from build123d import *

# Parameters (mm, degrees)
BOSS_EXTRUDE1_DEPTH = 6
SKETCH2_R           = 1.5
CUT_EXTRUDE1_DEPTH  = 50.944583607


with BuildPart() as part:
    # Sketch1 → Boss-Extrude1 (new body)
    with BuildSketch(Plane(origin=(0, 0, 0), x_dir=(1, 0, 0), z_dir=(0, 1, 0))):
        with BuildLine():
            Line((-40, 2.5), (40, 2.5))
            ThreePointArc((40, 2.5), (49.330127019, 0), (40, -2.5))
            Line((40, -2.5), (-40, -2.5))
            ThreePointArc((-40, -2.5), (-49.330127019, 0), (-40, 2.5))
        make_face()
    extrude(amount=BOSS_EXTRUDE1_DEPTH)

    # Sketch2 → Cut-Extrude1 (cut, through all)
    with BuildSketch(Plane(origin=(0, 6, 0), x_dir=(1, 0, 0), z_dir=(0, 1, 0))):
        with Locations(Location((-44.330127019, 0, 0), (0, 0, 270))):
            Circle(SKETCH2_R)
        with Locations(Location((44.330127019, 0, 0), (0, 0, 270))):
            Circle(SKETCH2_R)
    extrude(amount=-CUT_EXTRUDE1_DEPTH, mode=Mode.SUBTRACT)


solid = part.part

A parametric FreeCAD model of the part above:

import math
import FreeCAD as App
import Part
import Sketcher
Q = App.Units.Quantity

doc = App.newDocument("Part")
params = doc.addObject("Spreadsheet::Sheet", "Params")
for row, (alias, value) in enumerate([
    ("sketch1_radius", "5 mm"),
    ("sketch1_width", "80 mm"),
    ("pad1_length", "6 mm"),
    ("sketch2_diameter", "3 mm"),
], start=1):
    params.set(f"A{row}", alias)
    params.set(f"B{row}", "=" + value)
    params.setAlias(f"B{row}", alias)

body = doc.addObject("PartDesign::Body", "Body")

# Sketch on XZ plane
sketch1 = body.newObject("Sketcher::SketchObject", "Sketch")
sketch1.AttachmentSupport = (doc.getObject("XZ_Plane"), [""])
sketch1.MapMode = "FlatFace"
sketch1.addGeometry(Part.LineSegment(App.Vector(40, -2, 0), App.Vector(-40, -2, 0)), False)
sketch1.addGeometry(Part.ArcOfCircle(Part.Circle(App.Vector(-44, 0, 0), App.Vector(0, 0, 1), 5), math.radians(30), math.radians(330)), False)
sketch1.addGeometry(Part.LineSegment(App.Vector(-40, 2, 0), App.Vector(40, 2, 0)), False)
sketch1.addGeometry(Part.ArcOfCircle(Part.Circle(App.Vector(44, 0, 0), App.Vector(0, 0, 1), 5), math.radians(-150), math.radians(150)), False)
sketch1.addConstraint(Sketcher.Constraint("Coincident", 0, 2, 1, 2))
sketch1.addConstraint(Sketcher.Constraint("Coincident", 1, 1, 2, 1))
sketch1.addConstraint(Sketcher.Constraint("Coincident", 2, 2, 3, 2))
sketch1.addConstraint(Sketcher.Constraint("Coincident", 3, 1, 0, 1))
sketch1.addConstraint(Sketcher.Constraint("Horizontal", 0))
sketch1.addConstraint(Sketcher.Constraint("Horizontal", 2))
sketch1.addConstraint(Sketcher.Constraint("Equal", 1, 3))
sketch1.addConstraint(Sketcher.Constraint("Symmetric", 1, 3, 3, 3, -1, 1))
sketch1.addConstraint(Sketcher.Constraint("Symmetric", 0, 2, 1, 1, -1))
sketch1.addConstraint(Sketcher.Constraint("Radius", 1, Q("5 mm")))
sketch1.addConstraint(Sketcher.Constraint("DistanceX", 0, 2, 0, 1, Q("80 mm")))
sketch1.addConstraint(Sketcher.Constraint("DistanceY", 0, 2, 1, 1, Q("5 mm")))
sketch1.setExpression("Constraints[9]", "Params.sketch1_radius")
sketch1.setExpression("Constraints[10]", "Params.sketch1_width")
pad1 = body.newObject("PartDesign::Pad", "Pad")
pad1.Profile = sketch1
pad1.setExpression("Length", "Params.pad1_length")
pad1.Reversed = True

# Sketch on XZ plane
sketch2 = body.newObject("Sketcher::SketchObject", "Sketch001")
sketch2.AttachmentSupport = (doc.getObject("XZ_Plane"), [""])
sketch2.MapMode = "FlatFace"
sketch2.AttachmentOffset = App.Placement(App.Vector(0, 0, -6), App.Rotation())
sketch2.addGeometry(Part.Circle(App.Vector(-44.3, 0, 0), App.Vector(0, 0, 1), 1.5), False)
sketch2.addGeometry(Part.Circle(App.Vector(44.3, 0, 0), App.Vector(0, 0, 1), 1.5), False)
sketch2.addConstraint(Sketcher.Constraint("Equal", 0, 1))
sketch2.addConstraint(Sketcher.Constraint("Symmetric", 0, 3, 1, 3, -1, 1))
sketch2.addConstraint(Sketcher.Constraint("PointOnObject", 0, 3, -1))
sketch2.addConstraint(Sketcher.Constraint("Diameter", 0, Q("3 mm")))
sketch2.addConstraint(Sketcher.Constraint("DistanceX", 0, 3, -1, 1, Q("44.330127 mm")))
sketch2.setExpression("Constraints[3]", "Params.sketch2_diameter")
pocket1 = body.newObject("PartDesign::Pocket", "Pocket")
pocket1.Profile = sketch2
pocket1.Type = "ThroughAll"
pocket1.Reversed = True

doc.recompute()
